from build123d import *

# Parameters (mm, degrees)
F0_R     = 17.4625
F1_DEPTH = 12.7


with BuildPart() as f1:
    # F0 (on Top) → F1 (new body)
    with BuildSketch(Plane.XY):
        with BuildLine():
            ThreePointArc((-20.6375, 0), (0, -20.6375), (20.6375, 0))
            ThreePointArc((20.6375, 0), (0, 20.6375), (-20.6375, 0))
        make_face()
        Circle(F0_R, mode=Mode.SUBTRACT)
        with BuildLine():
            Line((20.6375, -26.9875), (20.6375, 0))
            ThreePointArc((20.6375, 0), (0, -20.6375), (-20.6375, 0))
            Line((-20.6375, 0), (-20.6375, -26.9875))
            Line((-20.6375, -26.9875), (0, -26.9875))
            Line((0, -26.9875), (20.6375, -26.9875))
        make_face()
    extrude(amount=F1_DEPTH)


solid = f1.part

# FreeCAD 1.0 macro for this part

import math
import FreeCAD as App
import Part
import Sketcher
Q = App.Units.Quantity

doc = App.newDocument("Part")
body = doc.addObject("PartDesign::Body", "Body")

sketch1 = body.newObject("Sketcher::SketchObject", "Sketch")
sketch1.AttachmentSupport = (doc.getObject("XY_Plane"), [""])
sketch1.MapMode = "FlatFace"
sketch1.addGeometry([
    Part.ArcOfCircle(Part.Circle(App.Vector(0, 0, 0), App.Vector(0, 0, 1), 20.6375), math.radians(0), math.radians(180)),
    Part.LineSegment(App.Vector(-20.6375, 0, 0), App.Vector(-20.6375, -26.9875, 0)),
    Part.LineSegment(App.Vector(-20.6375, -26.9875, 0), App.Vector(20.6375, -26.9875, 0)),
    Part.LineSegment(App.Vector(20.6375, -26.9875, 0), App.Vector(20.6375, 0, 0)),
    Part.Circle(App.Vector(0, 0, 0), App.Vector(0, 0, 1), 17.4625),
], False)
sketch1.addConstraint([
    Sketcher.Constraint("Tangent", 0, 2, 1, 1),
    Sketcher.Constraint("Coincident", 1, 2, 2, 1),
    Sketcher.Constraint("Coincident", 2, 2, 3, 1),
    Sketcher.Constraint("Tangent", 3, 2, 0, 1),
    Sketcher.Constraint("Vertical", 1),
    Sketcher.Constraint("Horizontal", 2),
    Sketcher.Constraint("Vertical", 3),
    Sketcher.Constraint("Coincident", 0, 3, -1, 1),
    Sketcher.Constraint("Coincident", 4, 3, -1, 1),
    Sketcher.Constraint("Diameter", 4, Q("1.375 in")),
    Sketcher.Constraint("Radius", 0, Q("0.8125 in")),
    Sketcher.Constraint("DistanceY", 1, 2, 1, 1, Q("1.0625 in")),
])
pad1 = body.newObject("PartDesign::Pad", "Pad")
pad1.Profile = sketch1
pad1.Length = Q("0.5 in")

doc.recompute()
